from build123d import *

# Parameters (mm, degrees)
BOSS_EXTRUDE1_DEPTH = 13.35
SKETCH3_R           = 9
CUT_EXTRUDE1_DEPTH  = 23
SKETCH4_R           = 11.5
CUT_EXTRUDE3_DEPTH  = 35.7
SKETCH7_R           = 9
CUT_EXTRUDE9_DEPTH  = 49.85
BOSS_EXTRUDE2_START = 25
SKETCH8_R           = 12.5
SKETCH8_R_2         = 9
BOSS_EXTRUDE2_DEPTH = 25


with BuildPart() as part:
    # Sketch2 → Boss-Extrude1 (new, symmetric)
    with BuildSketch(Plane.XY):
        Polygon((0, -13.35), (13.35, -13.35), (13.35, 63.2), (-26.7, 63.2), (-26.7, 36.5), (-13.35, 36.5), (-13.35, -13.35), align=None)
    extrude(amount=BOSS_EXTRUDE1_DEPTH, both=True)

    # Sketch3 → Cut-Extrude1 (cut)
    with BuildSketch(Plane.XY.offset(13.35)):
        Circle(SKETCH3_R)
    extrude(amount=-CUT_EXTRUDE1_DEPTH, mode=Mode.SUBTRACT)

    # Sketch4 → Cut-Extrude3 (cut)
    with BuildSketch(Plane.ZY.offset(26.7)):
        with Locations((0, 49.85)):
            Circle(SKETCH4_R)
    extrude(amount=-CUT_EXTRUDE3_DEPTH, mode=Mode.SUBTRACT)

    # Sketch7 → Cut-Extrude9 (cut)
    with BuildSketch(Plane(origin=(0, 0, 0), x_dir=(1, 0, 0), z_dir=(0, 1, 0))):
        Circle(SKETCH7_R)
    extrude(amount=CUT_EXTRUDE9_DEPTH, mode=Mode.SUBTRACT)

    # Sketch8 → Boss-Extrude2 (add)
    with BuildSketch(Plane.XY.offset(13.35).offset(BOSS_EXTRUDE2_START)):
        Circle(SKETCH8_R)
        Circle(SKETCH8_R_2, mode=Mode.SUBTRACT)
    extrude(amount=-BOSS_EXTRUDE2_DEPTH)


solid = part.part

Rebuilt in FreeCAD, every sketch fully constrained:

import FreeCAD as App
import Part
import Sketcher
from FreeCAD import Vector
Q = App.Units.Quantity

doc = App.newDocument("Part")
body = doc.addObject("PartDesign::Body", "Body")

sketch1 = body.newObject("Sketcher::SketchObject", "Sketch")
sketch1.AttachmentSupport = (doc.getObject("XY_Plane"), [""])
sketch1.MapMode = "FlatFace"
sketch1.addGeometry(Part.LineSegment(Vector(13, -13, 0), Vector(13, 63, 0)), False)
sketch1.addGeometry(Part.LineSegment(Vector(13, 63, 0), Vector(-27, 63, 0)), False)
sketch1.addGeometry(Part.LineSegment(Vector(-27, 63, 0), Vector(-27, 36, 0)), False)
sketch1.addGeometry(Part.LineSegment(Vector(-27, 36, 0), Vector(-13, 36, 0)), False)
sketch1.addGeometry(Part.LineSegment(Vector(-13, 36, 0), Vector(-13, -13, 0)), False)
sketch1.addGeometry(Part.LineSegment(Vector(-13, -13, 0), Vector(13, -13, 0)), False)
sketch1.addConstraint(Sketcher.Constraint("Coincident", 0, 2, 1, 1))
sketch1.addConstraint(Sketcher.Constraint("Coincident", 1, 2, 2, 1))
sketch1.addConstraint(Sketcher.Constraint("Coincident", 2, 2, 3, 1))
sketch1.addConstraint(Sketcher.Constraint("Coincident", 3, 2, 4, 1))
sketch1.addConstraint(Sketcher.Constraint("Coincident", 4, 2, 5, 1))
sketch1.addConstraint(Sketcher.Constraint("Coincident", 5, 2, 0, 1))
sketch1.addConstraint(Sketcher.Constraint("Vertical", 0))
sketch1.addConstraint(Sketcher.Constraint("Horizontal", 1))
sketch1.addConstraint(Sketcher.Constraint("Vertical", 2))
sketch1.addConstraint(Sketcher.Constraint("Horizontal", 3))
sketch1.addConstraint(Sketcher.Constraint("Vertical", 4))
sketch1.addConstraint(Sketcher.Constraint("Horizontal", 5))
sketch1.addConstraint(Sketcher.Constraint("Equal", 5, 2))
sketch1.addConstraint(Sketcher.Constraint("DistanceX", 5, 1, 5, 2, Q("26.7 mm")))
sketch1.addConstraint(Sketcher.Constraint("DistanceX", 1, 2, 1, 1, Q("40.05 mm")))
sketch1.addConstraint(Sketcher.Constraint("DistanceY", 0, 1, 0, 2, Q("76.55 mm")))
sketch1.addConstraint(Sketcher.Constraint("DistanceY", -1, 1, 0, 2, Q("63.2 mm")))
sketch1.addConstraint(Sketcher.Constraint("DistanceX", 1, 2, -1, 1, Q("26.7 mm")))
pad1 = body.newObject("PartDesign::Pad", "Pad")
pad1.Profile = sketch1
pad1.Length = 26.7
pad1.Midplane = True

sketch2 = body.newObject("Sketcher::SketchObject", "Sketch001")
sketch2.AttachmentSupport = (doc.getObject("XY_Plane"), [""])
sketch2.MapMode = "FlatFace"
sketch2.AttachmentOffset = App.Placement(Vector(0, 0, 13.35), App.Rotation())
sketch2.addGeometry(Part.Circle(Vector(0, 0, 0), Vector(0, 0, 1), 9), False)
sketch2.addConstraint(Sketcher.Constraint("Coincident", 0, 3, -1, 1))
sketch2.addConstraint(Sketcher.Constraint("Diameter", 0, Q("18 mm")))
pocket1 = body.newObject("PartDesign::Pocket", "Pocket")
pocket1.Profile = sketch2
pocket1.Length = 23

sketch3 = body.newObject("Sketcher::SketchObject", "Sketch002")
sketch3.AttachmentSupport = (doc.getObject("YZ_Plane"), [""])
sketch3.MapMode = "FlatFace"
sketch3.AttachmentOffset = App.Placement(Vector(0, 0, -26.7), App.Rotation())
sketch3.addGeometry(Part.Circle(Vector(50, 0, 0), Vector(0, 0, 1), 12), False)
sketch3.addConstraint(Sketcher.Constraint("PointOnObject", 0, 3, -1))
sketch3.addConstraint(Sketcher.Constraint("Diameter", 0, Q("23 mm")))
sketch3.addConstraint(Sketcher.Constraint("DistanceX", -1, 1, 0, 3, Q("49.85 mm")))
pocket2 = body.newObject("PartDesign::Pocket", "Pocket001")
pocket2.Profile = sketch3
pocket2.Length = 35.7
pocket2.Reversed = True

sketch4 = body.newObject("Sketcher::SketchObject", "Sketch003")
sketch4.AttachmentSupport = (doc.getObject("XZ_Plane"), [""])
sketch4.MapMode = "FlatFace"
sketch4.addGeometry(Part.Circle(Vector(0, 0, 0), Vector(0, 0, 1), 9), False)
sketch4.addConstraint(Sketcher.Constraint("Coincident", 0, 3, -1, 1))
sketch4.addConstraint(Sketcher.Constraint("Diameter", 0, Q("18 mm")))
pocket3 = body.newObject("PartDesign::Pocket", "Pocket002")
pocket3.Profile = sketch4
pocket3.Length = 49.85

sketch5 = body.newObject("Sketcher::SketchObject", "Sketch004")
sketch5.AttachmentSupport = (doc.getObject("XY_Plane"), [""])
sketch5.MapMode = "FlatFace"
sketch5.AttachmentOffset = App.Placement(Vector(0, 0, 38.35), App.Rotation())
sketch5.addGeometry(Part.Circle(Vector(0, 0, 0), Vector(0, 0, 1), 12), False)
sketch5.addGeometry(Part.Circle(Vector(0, 0, 0), Vector(0, 0, 1), 9), False)
sketch5.addConstraint(Sketcher.Constraint("Coincident", 0, 3, -1, 1))
sketch5.addConstraint(Sketcher.Constraint("Coincident", 1, 3, -1, 1))
sketch5.addConstraint(Sketcher.Constraint("Diameter", 0, Q("25 mm")))
sketch5.addConstraint(Sketcher.Constraint("Diameter", 1, Q("18 mm")))
pad2 = body.newObject("PartDesign::Pad", "Pad001")
pad2.Profile = sketch5
pad2.Length = 25
pad2.Reversed = True

doc.recompute()
